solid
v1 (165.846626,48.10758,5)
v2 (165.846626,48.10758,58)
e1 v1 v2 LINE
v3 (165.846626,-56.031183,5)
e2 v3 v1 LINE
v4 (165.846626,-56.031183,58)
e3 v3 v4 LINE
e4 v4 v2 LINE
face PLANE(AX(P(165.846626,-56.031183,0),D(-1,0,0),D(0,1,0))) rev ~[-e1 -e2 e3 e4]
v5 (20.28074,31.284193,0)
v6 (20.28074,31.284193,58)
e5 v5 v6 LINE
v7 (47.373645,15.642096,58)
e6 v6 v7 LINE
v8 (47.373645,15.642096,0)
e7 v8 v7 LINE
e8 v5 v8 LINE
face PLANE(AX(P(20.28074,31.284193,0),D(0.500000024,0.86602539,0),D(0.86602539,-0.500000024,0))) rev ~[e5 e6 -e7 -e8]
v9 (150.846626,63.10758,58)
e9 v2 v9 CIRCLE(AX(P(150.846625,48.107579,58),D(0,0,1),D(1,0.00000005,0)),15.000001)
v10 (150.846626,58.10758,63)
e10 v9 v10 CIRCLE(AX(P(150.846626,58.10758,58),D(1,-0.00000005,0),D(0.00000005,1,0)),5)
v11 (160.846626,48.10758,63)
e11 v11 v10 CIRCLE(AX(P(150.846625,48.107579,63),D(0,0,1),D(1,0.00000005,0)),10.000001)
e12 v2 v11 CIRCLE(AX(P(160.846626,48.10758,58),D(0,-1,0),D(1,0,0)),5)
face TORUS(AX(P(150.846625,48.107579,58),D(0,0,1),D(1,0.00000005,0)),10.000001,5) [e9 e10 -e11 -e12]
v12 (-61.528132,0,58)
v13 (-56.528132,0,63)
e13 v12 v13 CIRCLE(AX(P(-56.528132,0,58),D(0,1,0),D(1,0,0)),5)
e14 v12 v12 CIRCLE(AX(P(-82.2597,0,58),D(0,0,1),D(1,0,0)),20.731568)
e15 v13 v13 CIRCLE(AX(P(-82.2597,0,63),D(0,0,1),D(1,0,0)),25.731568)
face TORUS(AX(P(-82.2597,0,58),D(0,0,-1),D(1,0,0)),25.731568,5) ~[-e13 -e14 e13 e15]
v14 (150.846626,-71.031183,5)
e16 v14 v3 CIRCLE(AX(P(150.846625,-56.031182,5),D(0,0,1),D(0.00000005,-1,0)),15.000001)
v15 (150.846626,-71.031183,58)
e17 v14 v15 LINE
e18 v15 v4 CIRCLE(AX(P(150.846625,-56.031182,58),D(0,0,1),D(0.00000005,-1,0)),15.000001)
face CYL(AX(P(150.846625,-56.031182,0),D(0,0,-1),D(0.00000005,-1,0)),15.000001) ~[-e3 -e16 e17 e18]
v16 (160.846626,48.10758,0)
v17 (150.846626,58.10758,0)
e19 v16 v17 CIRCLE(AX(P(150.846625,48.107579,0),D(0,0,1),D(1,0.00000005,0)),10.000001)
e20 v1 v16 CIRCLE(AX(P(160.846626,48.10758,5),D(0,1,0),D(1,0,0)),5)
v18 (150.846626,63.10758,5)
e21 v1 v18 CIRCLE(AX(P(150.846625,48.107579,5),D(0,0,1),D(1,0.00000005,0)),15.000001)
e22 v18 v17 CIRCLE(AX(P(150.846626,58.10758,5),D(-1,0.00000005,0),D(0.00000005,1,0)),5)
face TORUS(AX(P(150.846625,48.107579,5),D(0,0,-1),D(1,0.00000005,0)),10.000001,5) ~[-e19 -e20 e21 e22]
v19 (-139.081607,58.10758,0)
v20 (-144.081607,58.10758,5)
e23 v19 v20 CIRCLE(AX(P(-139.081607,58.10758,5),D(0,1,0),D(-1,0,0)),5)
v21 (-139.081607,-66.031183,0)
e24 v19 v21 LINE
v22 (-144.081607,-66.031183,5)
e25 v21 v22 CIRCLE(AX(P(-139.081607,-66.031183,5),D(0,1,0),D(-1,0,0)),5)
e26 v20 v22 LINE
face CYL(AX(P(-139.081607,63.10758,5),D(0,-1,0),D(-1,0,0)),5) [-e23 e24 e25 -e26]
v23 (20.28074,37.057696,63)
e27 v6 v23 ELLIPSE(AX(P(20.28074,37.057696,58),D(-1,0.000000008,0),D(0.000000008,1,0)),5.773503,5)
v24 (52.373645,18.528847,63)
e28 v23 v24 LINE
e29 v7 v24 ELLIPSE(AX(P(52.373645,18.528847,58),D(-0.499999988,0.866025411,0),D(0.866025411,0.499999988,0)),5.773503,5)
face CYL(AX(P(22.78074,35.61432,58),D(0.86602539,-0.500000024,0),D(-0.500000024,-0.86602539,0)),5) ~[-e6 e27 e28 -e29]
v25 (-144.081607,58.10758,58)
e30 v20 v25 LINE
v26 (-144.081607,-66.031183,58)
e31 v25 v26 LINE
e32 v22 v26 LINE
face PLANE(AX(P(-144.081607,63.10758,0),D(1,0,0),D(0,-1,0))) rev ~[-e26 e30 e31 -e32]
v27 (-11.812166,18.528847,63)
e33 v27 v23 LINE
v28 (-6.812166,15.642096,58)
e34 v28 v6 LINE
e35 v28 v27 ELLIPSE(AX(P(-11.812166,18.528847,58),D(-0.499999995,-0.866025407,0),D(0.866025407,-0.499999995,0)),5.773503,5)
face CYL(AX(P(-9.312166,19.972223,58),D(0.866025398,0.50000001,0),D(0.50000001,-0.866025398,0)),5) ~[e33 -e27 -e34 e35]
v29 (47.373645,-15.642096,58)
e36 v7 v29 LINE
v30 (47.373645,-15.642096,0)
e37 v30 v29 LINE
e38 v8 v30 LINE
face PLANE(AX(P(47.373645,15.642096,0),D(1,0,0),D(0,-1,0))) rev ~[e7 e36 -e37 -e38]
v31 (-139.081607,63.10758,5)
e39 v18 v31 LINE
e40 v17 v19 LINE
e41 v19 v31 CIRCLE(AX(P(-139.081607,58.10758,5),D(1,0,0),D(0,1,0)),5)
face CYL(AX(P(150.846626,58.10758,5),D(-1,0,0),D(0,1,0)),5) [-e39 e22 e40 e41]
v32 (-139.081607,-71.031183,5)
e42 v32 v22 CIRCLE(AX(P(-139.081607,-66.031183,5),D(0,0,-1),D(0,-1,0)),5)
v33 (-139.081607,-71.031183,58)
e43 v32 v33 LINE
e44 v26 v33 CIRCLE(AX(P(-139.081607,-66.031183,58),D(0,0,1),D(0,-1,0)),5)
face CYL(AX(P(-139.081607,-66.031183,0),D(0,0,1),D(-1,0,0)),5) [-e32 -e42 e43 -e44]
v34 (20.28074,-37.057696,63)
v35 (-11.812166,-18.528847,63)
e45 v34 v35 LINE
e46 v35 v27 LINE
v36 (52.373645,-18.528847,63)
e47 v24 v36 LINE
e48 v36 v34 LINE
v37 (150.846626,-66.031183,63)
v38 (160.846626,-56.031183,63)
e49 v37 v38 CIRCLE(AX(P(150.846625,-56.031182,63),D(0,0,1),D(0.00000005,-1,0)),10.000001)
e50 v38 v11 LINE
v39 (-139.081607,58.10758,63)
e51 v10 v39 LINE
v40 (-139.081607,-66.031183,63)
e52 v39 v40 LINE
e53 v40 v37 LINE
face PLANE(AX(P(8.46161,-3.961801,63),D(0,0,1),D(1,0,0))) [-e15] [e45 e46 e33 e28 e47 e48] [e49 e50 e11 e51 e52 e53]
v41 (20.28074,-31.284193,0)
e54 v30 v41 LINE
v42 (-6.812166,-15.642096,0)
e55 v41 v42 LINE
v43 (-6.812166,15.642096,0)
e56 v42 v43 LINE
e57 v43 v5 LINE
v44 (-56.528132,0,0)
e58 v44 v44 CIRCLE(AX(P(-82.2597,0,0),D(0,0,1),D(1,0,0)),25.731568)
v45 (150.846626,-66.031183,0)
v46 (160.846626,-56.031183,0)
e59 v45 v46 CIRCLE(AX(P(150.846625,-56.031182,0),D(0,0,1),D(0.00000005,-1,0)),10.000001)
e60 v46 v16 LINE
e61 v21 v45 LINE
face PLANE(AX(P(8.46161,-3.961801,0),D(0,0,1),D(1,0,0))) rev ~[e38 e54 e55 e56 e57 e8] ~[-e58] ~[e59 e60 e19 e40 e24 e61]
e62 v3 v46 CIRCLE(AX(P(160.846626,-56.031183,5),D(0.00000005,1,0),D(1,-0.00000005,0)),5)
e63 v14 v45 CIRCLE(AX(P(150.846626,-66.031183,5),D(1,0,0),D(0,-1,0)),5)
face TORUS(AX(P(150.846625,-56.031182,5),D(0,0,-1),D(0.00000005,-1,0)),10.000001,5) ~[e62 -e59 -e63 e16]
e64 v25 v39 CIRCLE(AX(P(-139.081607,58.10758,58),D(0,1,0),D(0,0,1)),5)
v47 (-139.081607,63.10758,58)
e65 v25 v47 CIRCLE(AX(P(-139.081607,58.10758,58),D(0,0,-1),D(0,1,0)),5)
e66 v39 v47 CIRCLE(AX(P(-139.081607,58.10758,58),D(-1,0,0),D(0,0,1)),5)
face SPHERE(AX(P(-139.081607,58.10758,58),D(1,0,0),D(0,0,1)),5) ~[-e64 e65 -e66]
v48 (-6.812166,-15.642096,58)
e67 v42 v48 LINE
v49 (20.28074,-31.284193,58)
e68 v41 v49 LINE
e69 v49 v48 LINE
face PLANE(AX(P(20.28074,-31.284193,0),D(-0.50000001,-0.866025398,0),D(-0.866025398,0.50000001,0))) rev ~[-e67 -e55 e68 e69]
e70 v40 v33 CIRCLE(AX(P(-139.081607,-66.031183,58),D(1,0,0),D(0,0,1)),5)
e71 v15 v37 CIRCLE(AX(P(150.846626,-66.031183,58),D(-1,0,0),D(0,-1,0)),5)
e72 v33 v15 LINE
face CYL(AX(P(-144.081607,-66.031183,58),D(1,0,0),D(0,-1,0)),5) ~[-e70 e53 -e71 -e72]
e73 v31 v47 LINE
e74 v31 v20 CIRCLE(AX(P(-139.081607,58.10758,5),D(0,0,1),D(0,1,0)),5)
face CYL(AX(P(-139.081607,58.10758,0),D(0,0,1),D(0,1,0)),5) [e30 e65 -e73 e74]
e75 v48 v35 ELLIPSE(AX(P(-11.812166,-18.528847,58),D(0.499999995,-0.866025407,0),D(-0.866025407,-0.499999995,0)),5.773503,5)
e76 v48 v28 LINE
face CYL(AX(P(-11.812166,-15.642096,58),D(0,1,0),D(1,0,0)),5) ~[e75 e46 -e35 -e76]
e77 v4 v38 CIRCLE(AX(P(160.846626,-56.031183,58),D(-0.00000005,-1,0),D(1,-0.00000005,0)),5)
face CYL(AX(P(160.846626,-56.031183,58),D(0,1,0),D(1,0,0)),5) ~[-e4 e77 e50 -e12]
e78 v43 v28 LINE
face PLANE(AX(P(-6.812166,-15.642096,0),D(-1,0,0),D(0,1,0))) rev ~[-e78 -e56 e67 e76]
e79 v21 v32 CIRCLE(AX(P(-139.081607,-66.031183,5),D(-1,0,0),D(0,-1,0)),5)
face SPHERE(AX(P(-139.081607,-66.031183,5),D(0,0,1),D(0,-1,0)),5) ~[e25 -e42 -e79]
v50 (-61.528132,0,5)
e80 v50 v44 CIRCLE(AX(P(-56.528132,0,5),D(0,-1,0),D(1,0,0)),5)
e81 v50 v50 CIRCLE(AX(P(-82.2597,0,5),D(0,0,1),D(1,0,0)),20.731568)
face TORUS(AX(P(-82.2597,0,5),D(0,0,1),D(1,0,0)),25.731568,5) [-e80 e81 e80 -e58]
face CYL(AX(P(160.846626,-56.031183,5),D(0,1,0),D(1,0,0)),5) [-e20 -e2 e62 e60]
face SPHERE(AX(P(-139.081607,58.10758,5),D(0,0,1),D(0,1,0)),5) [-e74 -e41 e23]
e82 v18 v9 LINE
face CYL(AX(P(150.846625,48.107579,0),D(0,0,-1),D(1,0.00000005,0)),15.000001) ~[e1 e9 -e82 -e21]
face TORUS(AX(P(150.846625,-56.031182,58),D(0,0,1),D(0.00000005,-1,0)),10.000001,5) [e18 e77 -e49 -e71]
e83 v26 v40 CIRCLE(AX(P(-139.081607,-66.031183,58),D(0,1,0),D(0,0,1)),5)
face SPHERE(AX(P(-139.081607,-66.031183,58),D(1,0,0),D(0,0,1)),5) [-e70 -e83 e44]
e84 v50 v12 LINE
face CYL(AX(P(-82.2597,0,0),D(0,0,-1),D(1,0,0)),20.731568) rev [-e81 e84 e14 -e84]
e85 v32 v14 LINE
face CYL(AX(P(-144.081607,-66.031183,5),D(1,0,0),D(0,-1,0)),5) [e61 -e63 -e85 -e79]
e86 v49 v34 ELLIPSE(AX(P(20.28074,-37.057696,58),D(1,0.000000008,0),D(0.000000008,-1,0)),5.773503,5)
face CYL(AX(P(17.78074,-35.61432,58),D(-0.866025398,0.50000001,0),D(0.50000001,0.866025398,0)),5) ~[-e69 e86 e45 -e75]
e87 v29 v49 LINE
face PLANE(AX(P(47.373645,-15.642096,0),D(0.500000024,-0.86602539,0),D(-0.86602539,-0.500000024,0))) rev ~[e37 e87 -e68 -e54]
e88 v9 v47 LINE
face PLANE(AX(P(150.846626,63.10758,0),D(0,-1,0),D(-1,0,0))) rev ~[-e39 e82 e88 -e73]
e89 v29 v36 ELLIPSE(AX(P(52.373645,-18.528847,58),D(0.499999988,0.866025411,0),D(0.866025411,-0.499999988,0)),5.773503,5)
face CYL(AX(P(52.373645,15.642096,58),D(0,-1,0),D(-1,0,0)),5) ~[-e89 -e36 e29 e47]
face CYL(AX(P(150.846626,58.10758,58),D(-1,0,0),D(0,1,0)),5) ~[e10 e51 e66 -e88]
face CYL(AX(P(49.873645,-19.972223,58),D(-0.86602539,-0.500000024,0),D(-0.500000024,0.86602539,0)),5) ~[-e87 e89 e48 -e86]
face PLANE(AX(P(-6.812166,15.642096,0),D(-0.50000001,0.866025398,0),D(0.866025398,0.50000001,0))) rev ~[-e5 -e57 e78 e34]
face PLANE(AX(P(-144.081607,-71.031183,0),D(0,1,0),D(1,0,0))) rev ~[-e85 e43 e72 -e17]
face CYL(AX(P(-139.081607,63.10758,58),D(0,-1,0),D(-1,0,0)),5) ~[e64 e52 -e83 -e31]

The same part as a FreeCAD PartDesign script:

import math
import FreeCAD as App
import Part
import Sketcher
Q = App.Units.Quantity


def edges_at(feature, points):
    """Names of the edges that pass closest to the given points."""
    edges = feature.Shape.Edges
    near = lambda p: min(range(len(edges)), key=lambda i: edges[i].distToShape(Part.Vertex(*p))[0])
    return sorted({f"Edge{near(p) + 1}" for p in points})

doc = App.newDocument("Part")
body = doc.addObject("PartDesign::Body", "Body")

# Sketch on XY plane
sketch1 = doc.addObject("Sketcher::SketchObject", "Sketch")
body.addObject(sketch1)
sketch1.AttachmentSupport = (doc.XY_Plane, [""])
sketch1.MapMode = "FlatFace"
sketch1.addGeometry([
    Part.LineSegment(App.Vector(150.846626, 63.10758, 0), App.Vector(-144.081607, 63.10758, 0)),  # 0
    Part.LineSegment(App.Vector(-144.081607, 63.10758, 0), App.Vector(-144.081607, -71.031183, 0)),  # 1
    Part.LineSegment(App.Vector(-144.081607, -71.031183, 0), App.Vector(150.846626, -71.031183, 0)),  # 2
    Part.ArcOfCircle(Part.Circle(App.Vector(150.846625, -56.031182, 0), App.Vector(0, 0, 1), 15.000001), math.radians(-89.999997), math.radians(-0.000003)),  # 3
    Part.LineSegment(App.Vector(165.846626, -56.031183, 0), App.Vector(165.846626, 48.10758, 0)),  # 4
    Part.ArcOfCircle(Part.Circle(App.Vector(150.846625, 48.107579, 0), App.Vector(0, 0, 1), 15.000001), math.radians(0.000003), math.radians(89.999997)),  # 5
    Part.Circle(App.Vector(-82.2597, 0, 0), App.Vector(0, 0, 1), 20.731568),  # 6
    Part.LineSegment(App.Vector(-6.812166, 15.642096, 0), App.Vector(20.28074, 31.284193, 0)),  # 7
    Part.LineSegment(App.Vector(20.28074, 31.284193, 0), App.Vector(47.373645, 15.642096, 0)),  # 8
    Part.LineSegment(App.Vector(47.373645, 15.642096, 0), App.Vector(47.373645, -15.642096, 0)),  # 9
    Part.LineSegment(App.Vector(47.373645, -15.642096, 0), App.Vector(20.28074, -31.284193, 0)),  # 10
    Part.LineSegment(App.Vector(20.28074, -31.284193, 0), App.Vector(-6.812166, -15.642096, 0)),  # 11
    Part.LineSegment(App.Vector(-6.812166, -15.642096, 0), App.Vector(-6.812166, 15.642096, 0)),  # 12
], False)
sketch1.addConstraint([
    Sketcher.Constraint("Coincident", 0, 2, 1, 1),
    Sketcher.Constraint("Coincident", 1, 2, 2, 1),
    Sketcher.Constraint("Tangent", 2, 2, 3, 1),
    Sketcher.Constraint("Tangent", 3, 2, 4, 1),
    Sketcher.Constraint("Tangent", 4, 2, 5, 1),
    Sketcher.Constraint("Tangent", 5, 2, 0, 1),
    Sketcher.Constraint("Coincident", 7, 2, 8, 1),
    Sketcher.Constraint("Coincident", 8, 2, 9, 1),
    Sketcher.Constraint("Coincident", 9, 2, 10, 1),
    Sketcher.Constraint("Coincident", 10, 2, 11, 1),
    Sketcher.Constraint("Coincident", 11, 2, 12, 1),
    Sketcher.Constraint("Coincident", 12, 2, 7, 1),
    Sketcher.Constraint("Horizontal", 0),
    Sketcher.Constraint("Vertical", 1),
    Sketcher.Constraint("Horizontal", 2),
    Sketcher.Constraint("Vertical", 4),
    Sketcher.Constraint("Vertical", 9),
    Sketcher.Constraint("Vertical", 12),
    Sketcher.Constraint("Equal", 3, 5),
    Sketcher.Constraint("Symmetric", 7, 2, 10, 2, -1),
    Sketcher.Constraint("PointOnObject", 6, 3, -1),
    Sketcher.Constraint("Parallel", 7, 10),
    Sketcher.Constraint("Parallel", 8, 11),
    Sketcher.Constraint("Horizontal", 9, 2, 11, 2),
    Sketcher.Constraint("Horizontal", 8, 2, 12, 2),
    Sketcher.Constraint("Radius", 3, 15.000001),
    Sketcher.Constraint("Angle", 7, Q("30.000001 deg")),
    Sketcher.Constraint("Diameter", 6, 41.463136),
    Sketcher.Constraint("DistanceX", 6, 3, -1, 1, 82.2597),
    Sketcher.Constraint("DistanceX", 0, 2, 0, 1, 294.928233),
    Sketcher.Constraint("DistanceY", 1, 2, 1, 1, 134.138763),
    Sketcher.Constraint("DistanceY", 9, 2, 9, 1, 31.284192),
    Sketcher.Constraint("DistanceY", -1, 1, 5, 3, 48.107579),
    Sketcher.Constraint("DistanceX", -1, 1, 7, 2, 20.28074),
    Sketcher.Constraint("DistanceX", 8, 2, 5, 3, 103.47298),
    Sketcher.Constraint("DistanceY", 9, 2, 7, 2, 46.926289),
])
pad1 = doc.addObject("PartDesign::Pad", "Pad")
body.addObject(pad1)
pad1.Profile = sketch1
pad1.Length = 63
doc.recompute()

fillet = doc.addObject("PartDesign::Fillet", "Fillet")
body.addObject(fillet)
fillet.Base = (pad1, edges_at(pad1, [
    (3.383, 63.108, 63),
    (-144.082, -3.962, 63),
    (3.383, -71.031, 63),
    (161.453, -66.638, 63),
    (165.847, -3.962, 63),
    (161.453, 58.714, 63),
    (-102.991, 0, 63),
    (6.734, 23.463, 63),
    (33.827, 23.463, 63),
    (47.374, 0, 63),
    (33.827, -23.463, 63),
    (6.734, -23.463, 63),
    (-6.812, 0, 63),
    (-144.082, -71.031, 31.5),
    (-144.082, 63.108, 31.5),
    (3.383, -71.031, 0),
    (-144.082, -3.962, 0),
    (-61.528, 0, 31.5),
    (-102.991, 0, 0),
]))
fillet.Radius = 5

doc.recompute()
